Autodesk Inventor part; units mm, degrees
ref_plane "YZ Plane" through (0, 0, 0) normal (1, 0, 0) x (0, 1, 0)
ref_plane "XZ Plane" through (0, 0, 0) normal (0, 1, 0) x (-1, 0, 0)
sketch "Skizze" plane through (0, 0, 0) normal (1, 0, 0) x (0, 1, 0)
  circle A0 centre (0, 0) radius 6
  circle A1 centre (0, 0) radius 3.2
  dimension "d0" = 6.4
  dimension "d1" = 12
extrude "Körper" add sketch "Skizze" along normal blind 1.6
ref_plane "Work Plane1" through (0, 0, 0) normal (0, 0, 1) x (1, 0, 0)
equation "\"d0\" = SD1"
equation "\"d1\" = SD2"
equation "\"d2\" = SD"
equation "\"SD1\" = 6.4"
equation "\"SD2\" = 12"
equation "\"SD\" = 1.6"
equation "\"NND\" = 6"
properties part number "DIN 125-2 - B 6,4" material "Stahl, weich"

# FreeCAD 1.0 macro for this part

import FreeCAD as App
import Part
import Sketcher

V = App.Vector

doc = App.newDocument("Part")
params = doc.addObject("Spreadsheet::Sheet", "Params")
for row, (alias, value) in enumerate([
    ("sketch1_diameter", "12 mm"),
    ("sketch1_diameter2", "6.4 mm"),
    ("pad1_length", "1.6 mm"),
], start=1):
    params.set(f"A{row}", alias)
    params.set(f"B{row}", "=" + value)
    params.setAlias(f"B{row}", alias)

body = doc.addObject("PartDesign::Body", "Body")

# Sketch on YZ plane
sketch1 = body.newObject("Sketcher::SketchObject", "Sketch")
sketch1.AttachmentSupport = (doc.getObject("YZ_Plane"), [""])
sketch1.MapMode = "FlatFace"
sketch1.addGeometry([
    Part.Circle(V(0, 0, 0), V(0, 0, 1), 6),
    Part.Circle(V(0, 0, 0), V(0, 0, 1), 3.2),
], False)
sketch1.addConstraint([
    Sketcher.Constraint("Coincident", 0, 3, -1, 1),
    Sketcher.Constraint("Coincident", 1, 3, -1, 1),
    Sketcher.Constraint("Diameter", 0, 12.0),
    Sketcher.Constraint("Diameter", 1, 6.4),
])
sketch1.setExpression("Constraints[2]", "Params.sketch1_diameter")
sketch1.setExpression("Constraints[3]", "Params.sketch1_diameter2")
pad1 = body.newObject("PartDesign::Pad", "Pad")
pad1.Profile = sketch1
pad1.setExpression("Length", "Params.pad1_length")

doc.recompute()
